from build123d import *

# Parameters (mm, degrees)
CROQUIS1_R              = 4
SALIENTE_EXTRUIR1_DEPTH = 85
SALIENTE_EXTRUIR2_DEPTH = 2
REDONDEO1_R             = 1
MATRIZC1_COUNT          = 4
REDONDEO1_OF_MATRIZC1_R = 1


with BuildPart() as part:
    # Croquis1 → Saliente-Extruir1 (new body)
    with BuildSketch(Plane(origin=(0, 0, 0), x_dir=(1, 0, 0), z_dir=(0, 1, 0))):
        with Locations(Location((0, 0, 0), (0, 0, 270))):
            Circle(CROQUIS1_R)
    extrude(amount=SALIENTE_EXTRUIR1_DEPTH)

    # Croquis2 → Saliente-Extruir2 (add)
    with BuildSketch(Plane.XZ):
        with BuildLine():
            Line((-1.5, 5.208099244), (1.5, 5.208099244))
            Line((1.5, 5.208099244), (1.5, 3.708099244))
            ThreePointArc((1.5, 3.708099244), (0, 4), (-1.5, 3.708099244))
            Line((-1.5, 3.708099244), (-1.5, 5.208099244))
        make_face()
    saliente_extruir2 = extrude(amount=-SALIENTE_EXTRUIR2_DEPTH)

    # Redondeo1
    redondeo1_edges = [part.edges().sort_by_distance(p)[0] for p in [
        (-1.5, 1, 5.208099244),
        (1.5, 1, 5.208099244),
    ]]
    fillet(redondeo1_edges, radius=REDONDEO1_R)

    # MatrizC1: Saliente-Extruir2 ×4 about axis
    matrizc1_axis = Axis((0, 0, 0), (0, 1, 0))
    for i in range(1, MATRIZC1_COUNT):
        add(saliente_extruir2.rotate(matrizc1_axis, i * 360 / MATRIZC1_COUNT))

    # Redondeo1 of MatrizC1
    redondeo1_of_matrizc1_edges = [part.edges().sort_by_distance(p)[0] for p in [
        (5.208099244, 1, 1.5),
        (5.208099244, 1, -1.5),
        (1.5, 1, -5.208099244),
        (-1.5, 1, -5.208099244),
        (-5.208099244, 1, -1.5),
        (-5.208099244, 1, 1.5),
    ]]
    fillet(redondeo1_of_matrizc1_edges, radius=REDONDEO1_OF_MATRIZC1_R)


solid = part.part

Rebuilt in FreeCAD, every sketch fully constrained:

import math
import FreeCAD as App
import Part
import Sketcher

V = App.Vector
Q = App.Units.Quantity


def edges_at(feature, points):
    """Names of the edges that pass closest to the given points."""
    edges = feature.Shape.Edges
    near = lambda p: min(range(len(edges)), key=lambda i: edges[i].distToShape(Part.Vertex(*p))[0])
    return sorted({f"Edge{near(p) + 1}" for p in points})

doc = App.newDocument("Part")
body = doc.addObject("PartDesign::Body", "Body")

# Sketch on XZ plane
sketch1 = doc.addObject("Sketcher::SketchObject", "Sketch")
body.addObject(sketch1)
sketch1.AttachmentSupport = (doc.XZ_Plane, [""])
sketch1.MapMode = "FlatFace"
sketch1.addGeometry(Part.Circle(V(0, 0, 0), V(0, 0, 1), 4), False)
sketch1.addConstraint(Sketcher.Constraint("Coincident", 0, 3, -1, 1))
sketch1.addConstraint(Sketcher.Constraint("Diameter", 0, Q("8 mm")))
pad1 = doc.addObject("PartDesign::Pad", "Pad")
body.addObject(pad1)
pad1.Profile = sketch1
pad1.Length = 85
pad1.Reversed = True

# Sketch on XZ plane
sketch2 = doc.addObject("Sketcher::SketchObject", "Sketch001")
body.addObject(sketch2)
sketch2.AttachmentSupport = (doc.XZ_Plane, [""])
sketch2.MapMode = "FlatFace"
sketch2.addGeometry(Part.LineSegment(V(1.5, 5.2, 0), V(-1.5, 5.2, 0)), False)
sketch2.addGeometry(Part.LineSegment(V(-1.5, 5.2, 0), V(-1.5, 3.7, 0)), False)
sketch2.addGeometry(Part.ArcOfCircle(Part.Circle(V(0, 0, 0), V(0, 0, 1), 4), math.radians(68), math.radians(112)), False)
sketch2.addGeometry(Part.LineSegment(V(1.5, 3.7, 0), V(1.5, 5.2, 0)), False)
sketch2.addConstraint(Sketcher.Constraint("Coincident", 0, 2, 1, 1))
sketch2.addConstraint(Sketcher.Constraint("Coincident", 1, 2, 2, 2))
sketch2.addConstraint(Sketcher.Constraint("Coincident", 2, 1, 3, 1))
sketch2.addConstraint(Sketcher.Constraint("Coincident", 3, 2, 0, 1))
sketch2.addConstraint(Sketcher.Constraint("Horizontal", 0))
sketch2.addConstraint(Sketcher.Constraint("Vertical", 1))
sketch2.addConstraint(Sketcher.Constraint("Vertical", 3))
sketch2.addConstraint(Sketcher.Constraint("Coincident", 2, 3, -1, 1))
sketch2.addConstraint(Sketcher.Constraint("Horizontal", 1, 2, 2, 1))
sketch2.addConstraint(Sketcher.Constraint("Radius", 2, Q("4 mm")))
sketch2.addConstraint(Sketcher.Constraint("DistanceX", 0, 2, 0, 1, Q("3 mm")))
sketch2.addConstraint(Sketcher.Constraint("DistanceY", 1, 2, 1, 1, Q("1.5 mm")))
pad2 = doc.addObject("PartDesign::Pad", "Pad001")
body.addObject(pad2)
pad2.Profile = sketch2
pad2.Length = 2
pad2.Reversed = True
doc.recompute()

fillet = doc.addObject("PartDesign::Fillet", "Fillet")
body.addObject(fillet)
fillet.Base = (pad2, edges_at(pad2, [(-1.5, 1, 5.208), (1.5, 1, 5.208)]))
fillet.Radius = 1
doc.recompute()

polarpattern = doc.addObject("PartDesign::PolarPattern", "PolarPattern")
body.addObject(polarpattern)
polarpattern.Originals = [pad2]
polarpattern.Axis = (doc.Y_Axis, [""])
polarpattern.Angle = 360
polarpattern.Occurrences = 4
body.Tip = polarpattern
doc.recompute()

fillet2 = doc.addObject("PartDesign::Fillet", "Fillet001")
body.addObject(fillet2)
fillet2.Base = (polarpattern, edges_at(polarpattern, [
    (5.208, 1, 1.5),
    (5.208, 1, -1.5),
    (1.5, 1, -5.208),
    (-1.5, 1, -5.208),
    (-5.208, 1, -1.5),
    (-5.208, 1, 1.5),
]))
fillet2.Radius = 1

doc.recompute()
